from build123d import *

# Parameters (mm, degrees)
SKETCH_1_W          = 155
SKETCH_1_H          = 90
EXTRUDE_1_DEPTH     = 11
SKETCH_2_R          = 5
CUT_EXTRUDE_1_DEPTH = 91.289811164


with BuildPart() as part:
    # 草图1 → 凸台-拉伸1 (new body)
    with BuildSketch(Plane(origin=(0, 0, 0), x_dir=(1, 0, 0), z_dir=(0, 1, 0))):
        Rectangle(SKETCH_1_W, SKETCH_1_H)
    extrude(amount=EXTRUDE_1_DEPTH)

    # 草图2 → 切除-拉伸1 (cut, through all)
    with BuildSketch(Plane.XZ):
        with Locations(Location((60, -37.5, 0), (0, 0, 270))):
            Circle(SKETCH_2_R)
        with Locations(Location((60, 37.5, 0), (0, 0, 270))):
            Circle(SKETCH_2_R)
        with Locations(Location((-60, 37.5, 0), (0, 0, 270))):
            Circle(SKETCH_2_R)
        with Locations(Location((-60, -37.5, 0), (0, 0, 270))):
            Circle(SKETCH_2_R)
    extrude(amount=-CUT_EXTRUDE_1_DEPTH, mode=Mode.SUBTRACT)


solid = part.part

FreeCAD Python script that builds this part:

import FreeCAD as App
import Part
import Sketcher
from FreeCAD import Vector

doc = App.newDocument("Part")
body = doc.addObject("PartDesign::Body", "Body")

sketch1 = body.newObject("Sketcher::SketchObject", "Sketch")
sketch1.AttachmentSupport = (doc.getObject("XZ_Plane"), [""])
sketch1.MapMode = "FlatFace"
sketch1.addGeometry([
    Part.LineSegment(Vector(-78, -45, 0), Vector(-78, 45, 0)),
    Part.LineSegment(Vector(-78, 45, 0), Vector(78, 45, 0)),
    Part.LineSegment(Vector(78, 45, 0), Vector(78, -45, 0)),
    Part.LineSegment(Vector(78, -45, 0), Vector(-78, -45, 0)),
], False)
sketch1.addConstraint([
    Sketcher.Constraint("Coincident", 0, 2, 1, 1),
    Sketcher.Constraint("Coincident", 1, 2, 2, 1),
    Sketcher.Constraint("Coincident", 2, 2, 3, 1),
    Sketcher.Constraint("Coincident", 3, 2, 0, 1),
    Sketcher.Constraint("Vertical", 0),
    Sketcher.Constraint("Horizontal", 1),
    Sketcher.Constraint("Vertical", 2),
    Sketcher.Constraint("Horizontal", 3),
    Sketcher.Constraint("Symmetric", 0, 2, 2, 2, -1, 1),
    Sketcher.Constraint("DistanceX", 1, 1, 1, 2, 155.0),
    Sketcher.Constraint("DistanceY", 0, 1, 0, 2, 90.0),
])
pad1 = body.newObject("PartDesign::Pad", "Pad")
pad1.Profile = sketch1
pad1.Length = 11
pad1.Reversed = True

sketch2 = body.newObject("Sketcher::SketchObject", "Sketch001")
sketch2.AttachmentSupport = (doc.getObject("XZ_Plane"), [""])
sketch2.MapMode = "FlatFace"
sketch2.addGeometry([
    Part.Circle(Vector(60, -38, 0), Vector(0, 0, 1), 5),
    Part.Circle(Vector(60, 38, 0), Vector(0, 0, 1), 5),
    Part.Circle(Vector(-60, 38, 0), Vector(0, 0, 1), 5),
    Part.Circle(Vector(-60, -38, 0), Vector(0, 0, 1), 5),
], False)
sketch2.addConstraint([
    Sketcher.Constraint("Equal", 0, 1),
    Sketcher.Constraint("Equal", 1, 2),
    Sketcher.Constraint("Equal", 2, 3),
    Sketcher.Constraint("Symmetric", 0, 3, 2, 3, -1, 1),
    Sketcher.Constraint("Symmetric", 1, 3, 3, 3, -1, 1),
    Sketcher.Constraint("Symmetric", 1, 3, 2, 3, -2),
    Sketcher.Constraint("Diameter", 0, 10.0),
    Sketcher.Constraint("DistanceX", -1, 1, 0, 3, 60.0),
    Sketcher.Constraint("DistanceY", 0, 3, 1, 3, 75.0),
])
pocket1 = body.newObject("PartDesign::Pocket", "Pocket")
pocket1.Profile = sketch2
pocket1.Type = "ThroughAll"

doc.recompute()
